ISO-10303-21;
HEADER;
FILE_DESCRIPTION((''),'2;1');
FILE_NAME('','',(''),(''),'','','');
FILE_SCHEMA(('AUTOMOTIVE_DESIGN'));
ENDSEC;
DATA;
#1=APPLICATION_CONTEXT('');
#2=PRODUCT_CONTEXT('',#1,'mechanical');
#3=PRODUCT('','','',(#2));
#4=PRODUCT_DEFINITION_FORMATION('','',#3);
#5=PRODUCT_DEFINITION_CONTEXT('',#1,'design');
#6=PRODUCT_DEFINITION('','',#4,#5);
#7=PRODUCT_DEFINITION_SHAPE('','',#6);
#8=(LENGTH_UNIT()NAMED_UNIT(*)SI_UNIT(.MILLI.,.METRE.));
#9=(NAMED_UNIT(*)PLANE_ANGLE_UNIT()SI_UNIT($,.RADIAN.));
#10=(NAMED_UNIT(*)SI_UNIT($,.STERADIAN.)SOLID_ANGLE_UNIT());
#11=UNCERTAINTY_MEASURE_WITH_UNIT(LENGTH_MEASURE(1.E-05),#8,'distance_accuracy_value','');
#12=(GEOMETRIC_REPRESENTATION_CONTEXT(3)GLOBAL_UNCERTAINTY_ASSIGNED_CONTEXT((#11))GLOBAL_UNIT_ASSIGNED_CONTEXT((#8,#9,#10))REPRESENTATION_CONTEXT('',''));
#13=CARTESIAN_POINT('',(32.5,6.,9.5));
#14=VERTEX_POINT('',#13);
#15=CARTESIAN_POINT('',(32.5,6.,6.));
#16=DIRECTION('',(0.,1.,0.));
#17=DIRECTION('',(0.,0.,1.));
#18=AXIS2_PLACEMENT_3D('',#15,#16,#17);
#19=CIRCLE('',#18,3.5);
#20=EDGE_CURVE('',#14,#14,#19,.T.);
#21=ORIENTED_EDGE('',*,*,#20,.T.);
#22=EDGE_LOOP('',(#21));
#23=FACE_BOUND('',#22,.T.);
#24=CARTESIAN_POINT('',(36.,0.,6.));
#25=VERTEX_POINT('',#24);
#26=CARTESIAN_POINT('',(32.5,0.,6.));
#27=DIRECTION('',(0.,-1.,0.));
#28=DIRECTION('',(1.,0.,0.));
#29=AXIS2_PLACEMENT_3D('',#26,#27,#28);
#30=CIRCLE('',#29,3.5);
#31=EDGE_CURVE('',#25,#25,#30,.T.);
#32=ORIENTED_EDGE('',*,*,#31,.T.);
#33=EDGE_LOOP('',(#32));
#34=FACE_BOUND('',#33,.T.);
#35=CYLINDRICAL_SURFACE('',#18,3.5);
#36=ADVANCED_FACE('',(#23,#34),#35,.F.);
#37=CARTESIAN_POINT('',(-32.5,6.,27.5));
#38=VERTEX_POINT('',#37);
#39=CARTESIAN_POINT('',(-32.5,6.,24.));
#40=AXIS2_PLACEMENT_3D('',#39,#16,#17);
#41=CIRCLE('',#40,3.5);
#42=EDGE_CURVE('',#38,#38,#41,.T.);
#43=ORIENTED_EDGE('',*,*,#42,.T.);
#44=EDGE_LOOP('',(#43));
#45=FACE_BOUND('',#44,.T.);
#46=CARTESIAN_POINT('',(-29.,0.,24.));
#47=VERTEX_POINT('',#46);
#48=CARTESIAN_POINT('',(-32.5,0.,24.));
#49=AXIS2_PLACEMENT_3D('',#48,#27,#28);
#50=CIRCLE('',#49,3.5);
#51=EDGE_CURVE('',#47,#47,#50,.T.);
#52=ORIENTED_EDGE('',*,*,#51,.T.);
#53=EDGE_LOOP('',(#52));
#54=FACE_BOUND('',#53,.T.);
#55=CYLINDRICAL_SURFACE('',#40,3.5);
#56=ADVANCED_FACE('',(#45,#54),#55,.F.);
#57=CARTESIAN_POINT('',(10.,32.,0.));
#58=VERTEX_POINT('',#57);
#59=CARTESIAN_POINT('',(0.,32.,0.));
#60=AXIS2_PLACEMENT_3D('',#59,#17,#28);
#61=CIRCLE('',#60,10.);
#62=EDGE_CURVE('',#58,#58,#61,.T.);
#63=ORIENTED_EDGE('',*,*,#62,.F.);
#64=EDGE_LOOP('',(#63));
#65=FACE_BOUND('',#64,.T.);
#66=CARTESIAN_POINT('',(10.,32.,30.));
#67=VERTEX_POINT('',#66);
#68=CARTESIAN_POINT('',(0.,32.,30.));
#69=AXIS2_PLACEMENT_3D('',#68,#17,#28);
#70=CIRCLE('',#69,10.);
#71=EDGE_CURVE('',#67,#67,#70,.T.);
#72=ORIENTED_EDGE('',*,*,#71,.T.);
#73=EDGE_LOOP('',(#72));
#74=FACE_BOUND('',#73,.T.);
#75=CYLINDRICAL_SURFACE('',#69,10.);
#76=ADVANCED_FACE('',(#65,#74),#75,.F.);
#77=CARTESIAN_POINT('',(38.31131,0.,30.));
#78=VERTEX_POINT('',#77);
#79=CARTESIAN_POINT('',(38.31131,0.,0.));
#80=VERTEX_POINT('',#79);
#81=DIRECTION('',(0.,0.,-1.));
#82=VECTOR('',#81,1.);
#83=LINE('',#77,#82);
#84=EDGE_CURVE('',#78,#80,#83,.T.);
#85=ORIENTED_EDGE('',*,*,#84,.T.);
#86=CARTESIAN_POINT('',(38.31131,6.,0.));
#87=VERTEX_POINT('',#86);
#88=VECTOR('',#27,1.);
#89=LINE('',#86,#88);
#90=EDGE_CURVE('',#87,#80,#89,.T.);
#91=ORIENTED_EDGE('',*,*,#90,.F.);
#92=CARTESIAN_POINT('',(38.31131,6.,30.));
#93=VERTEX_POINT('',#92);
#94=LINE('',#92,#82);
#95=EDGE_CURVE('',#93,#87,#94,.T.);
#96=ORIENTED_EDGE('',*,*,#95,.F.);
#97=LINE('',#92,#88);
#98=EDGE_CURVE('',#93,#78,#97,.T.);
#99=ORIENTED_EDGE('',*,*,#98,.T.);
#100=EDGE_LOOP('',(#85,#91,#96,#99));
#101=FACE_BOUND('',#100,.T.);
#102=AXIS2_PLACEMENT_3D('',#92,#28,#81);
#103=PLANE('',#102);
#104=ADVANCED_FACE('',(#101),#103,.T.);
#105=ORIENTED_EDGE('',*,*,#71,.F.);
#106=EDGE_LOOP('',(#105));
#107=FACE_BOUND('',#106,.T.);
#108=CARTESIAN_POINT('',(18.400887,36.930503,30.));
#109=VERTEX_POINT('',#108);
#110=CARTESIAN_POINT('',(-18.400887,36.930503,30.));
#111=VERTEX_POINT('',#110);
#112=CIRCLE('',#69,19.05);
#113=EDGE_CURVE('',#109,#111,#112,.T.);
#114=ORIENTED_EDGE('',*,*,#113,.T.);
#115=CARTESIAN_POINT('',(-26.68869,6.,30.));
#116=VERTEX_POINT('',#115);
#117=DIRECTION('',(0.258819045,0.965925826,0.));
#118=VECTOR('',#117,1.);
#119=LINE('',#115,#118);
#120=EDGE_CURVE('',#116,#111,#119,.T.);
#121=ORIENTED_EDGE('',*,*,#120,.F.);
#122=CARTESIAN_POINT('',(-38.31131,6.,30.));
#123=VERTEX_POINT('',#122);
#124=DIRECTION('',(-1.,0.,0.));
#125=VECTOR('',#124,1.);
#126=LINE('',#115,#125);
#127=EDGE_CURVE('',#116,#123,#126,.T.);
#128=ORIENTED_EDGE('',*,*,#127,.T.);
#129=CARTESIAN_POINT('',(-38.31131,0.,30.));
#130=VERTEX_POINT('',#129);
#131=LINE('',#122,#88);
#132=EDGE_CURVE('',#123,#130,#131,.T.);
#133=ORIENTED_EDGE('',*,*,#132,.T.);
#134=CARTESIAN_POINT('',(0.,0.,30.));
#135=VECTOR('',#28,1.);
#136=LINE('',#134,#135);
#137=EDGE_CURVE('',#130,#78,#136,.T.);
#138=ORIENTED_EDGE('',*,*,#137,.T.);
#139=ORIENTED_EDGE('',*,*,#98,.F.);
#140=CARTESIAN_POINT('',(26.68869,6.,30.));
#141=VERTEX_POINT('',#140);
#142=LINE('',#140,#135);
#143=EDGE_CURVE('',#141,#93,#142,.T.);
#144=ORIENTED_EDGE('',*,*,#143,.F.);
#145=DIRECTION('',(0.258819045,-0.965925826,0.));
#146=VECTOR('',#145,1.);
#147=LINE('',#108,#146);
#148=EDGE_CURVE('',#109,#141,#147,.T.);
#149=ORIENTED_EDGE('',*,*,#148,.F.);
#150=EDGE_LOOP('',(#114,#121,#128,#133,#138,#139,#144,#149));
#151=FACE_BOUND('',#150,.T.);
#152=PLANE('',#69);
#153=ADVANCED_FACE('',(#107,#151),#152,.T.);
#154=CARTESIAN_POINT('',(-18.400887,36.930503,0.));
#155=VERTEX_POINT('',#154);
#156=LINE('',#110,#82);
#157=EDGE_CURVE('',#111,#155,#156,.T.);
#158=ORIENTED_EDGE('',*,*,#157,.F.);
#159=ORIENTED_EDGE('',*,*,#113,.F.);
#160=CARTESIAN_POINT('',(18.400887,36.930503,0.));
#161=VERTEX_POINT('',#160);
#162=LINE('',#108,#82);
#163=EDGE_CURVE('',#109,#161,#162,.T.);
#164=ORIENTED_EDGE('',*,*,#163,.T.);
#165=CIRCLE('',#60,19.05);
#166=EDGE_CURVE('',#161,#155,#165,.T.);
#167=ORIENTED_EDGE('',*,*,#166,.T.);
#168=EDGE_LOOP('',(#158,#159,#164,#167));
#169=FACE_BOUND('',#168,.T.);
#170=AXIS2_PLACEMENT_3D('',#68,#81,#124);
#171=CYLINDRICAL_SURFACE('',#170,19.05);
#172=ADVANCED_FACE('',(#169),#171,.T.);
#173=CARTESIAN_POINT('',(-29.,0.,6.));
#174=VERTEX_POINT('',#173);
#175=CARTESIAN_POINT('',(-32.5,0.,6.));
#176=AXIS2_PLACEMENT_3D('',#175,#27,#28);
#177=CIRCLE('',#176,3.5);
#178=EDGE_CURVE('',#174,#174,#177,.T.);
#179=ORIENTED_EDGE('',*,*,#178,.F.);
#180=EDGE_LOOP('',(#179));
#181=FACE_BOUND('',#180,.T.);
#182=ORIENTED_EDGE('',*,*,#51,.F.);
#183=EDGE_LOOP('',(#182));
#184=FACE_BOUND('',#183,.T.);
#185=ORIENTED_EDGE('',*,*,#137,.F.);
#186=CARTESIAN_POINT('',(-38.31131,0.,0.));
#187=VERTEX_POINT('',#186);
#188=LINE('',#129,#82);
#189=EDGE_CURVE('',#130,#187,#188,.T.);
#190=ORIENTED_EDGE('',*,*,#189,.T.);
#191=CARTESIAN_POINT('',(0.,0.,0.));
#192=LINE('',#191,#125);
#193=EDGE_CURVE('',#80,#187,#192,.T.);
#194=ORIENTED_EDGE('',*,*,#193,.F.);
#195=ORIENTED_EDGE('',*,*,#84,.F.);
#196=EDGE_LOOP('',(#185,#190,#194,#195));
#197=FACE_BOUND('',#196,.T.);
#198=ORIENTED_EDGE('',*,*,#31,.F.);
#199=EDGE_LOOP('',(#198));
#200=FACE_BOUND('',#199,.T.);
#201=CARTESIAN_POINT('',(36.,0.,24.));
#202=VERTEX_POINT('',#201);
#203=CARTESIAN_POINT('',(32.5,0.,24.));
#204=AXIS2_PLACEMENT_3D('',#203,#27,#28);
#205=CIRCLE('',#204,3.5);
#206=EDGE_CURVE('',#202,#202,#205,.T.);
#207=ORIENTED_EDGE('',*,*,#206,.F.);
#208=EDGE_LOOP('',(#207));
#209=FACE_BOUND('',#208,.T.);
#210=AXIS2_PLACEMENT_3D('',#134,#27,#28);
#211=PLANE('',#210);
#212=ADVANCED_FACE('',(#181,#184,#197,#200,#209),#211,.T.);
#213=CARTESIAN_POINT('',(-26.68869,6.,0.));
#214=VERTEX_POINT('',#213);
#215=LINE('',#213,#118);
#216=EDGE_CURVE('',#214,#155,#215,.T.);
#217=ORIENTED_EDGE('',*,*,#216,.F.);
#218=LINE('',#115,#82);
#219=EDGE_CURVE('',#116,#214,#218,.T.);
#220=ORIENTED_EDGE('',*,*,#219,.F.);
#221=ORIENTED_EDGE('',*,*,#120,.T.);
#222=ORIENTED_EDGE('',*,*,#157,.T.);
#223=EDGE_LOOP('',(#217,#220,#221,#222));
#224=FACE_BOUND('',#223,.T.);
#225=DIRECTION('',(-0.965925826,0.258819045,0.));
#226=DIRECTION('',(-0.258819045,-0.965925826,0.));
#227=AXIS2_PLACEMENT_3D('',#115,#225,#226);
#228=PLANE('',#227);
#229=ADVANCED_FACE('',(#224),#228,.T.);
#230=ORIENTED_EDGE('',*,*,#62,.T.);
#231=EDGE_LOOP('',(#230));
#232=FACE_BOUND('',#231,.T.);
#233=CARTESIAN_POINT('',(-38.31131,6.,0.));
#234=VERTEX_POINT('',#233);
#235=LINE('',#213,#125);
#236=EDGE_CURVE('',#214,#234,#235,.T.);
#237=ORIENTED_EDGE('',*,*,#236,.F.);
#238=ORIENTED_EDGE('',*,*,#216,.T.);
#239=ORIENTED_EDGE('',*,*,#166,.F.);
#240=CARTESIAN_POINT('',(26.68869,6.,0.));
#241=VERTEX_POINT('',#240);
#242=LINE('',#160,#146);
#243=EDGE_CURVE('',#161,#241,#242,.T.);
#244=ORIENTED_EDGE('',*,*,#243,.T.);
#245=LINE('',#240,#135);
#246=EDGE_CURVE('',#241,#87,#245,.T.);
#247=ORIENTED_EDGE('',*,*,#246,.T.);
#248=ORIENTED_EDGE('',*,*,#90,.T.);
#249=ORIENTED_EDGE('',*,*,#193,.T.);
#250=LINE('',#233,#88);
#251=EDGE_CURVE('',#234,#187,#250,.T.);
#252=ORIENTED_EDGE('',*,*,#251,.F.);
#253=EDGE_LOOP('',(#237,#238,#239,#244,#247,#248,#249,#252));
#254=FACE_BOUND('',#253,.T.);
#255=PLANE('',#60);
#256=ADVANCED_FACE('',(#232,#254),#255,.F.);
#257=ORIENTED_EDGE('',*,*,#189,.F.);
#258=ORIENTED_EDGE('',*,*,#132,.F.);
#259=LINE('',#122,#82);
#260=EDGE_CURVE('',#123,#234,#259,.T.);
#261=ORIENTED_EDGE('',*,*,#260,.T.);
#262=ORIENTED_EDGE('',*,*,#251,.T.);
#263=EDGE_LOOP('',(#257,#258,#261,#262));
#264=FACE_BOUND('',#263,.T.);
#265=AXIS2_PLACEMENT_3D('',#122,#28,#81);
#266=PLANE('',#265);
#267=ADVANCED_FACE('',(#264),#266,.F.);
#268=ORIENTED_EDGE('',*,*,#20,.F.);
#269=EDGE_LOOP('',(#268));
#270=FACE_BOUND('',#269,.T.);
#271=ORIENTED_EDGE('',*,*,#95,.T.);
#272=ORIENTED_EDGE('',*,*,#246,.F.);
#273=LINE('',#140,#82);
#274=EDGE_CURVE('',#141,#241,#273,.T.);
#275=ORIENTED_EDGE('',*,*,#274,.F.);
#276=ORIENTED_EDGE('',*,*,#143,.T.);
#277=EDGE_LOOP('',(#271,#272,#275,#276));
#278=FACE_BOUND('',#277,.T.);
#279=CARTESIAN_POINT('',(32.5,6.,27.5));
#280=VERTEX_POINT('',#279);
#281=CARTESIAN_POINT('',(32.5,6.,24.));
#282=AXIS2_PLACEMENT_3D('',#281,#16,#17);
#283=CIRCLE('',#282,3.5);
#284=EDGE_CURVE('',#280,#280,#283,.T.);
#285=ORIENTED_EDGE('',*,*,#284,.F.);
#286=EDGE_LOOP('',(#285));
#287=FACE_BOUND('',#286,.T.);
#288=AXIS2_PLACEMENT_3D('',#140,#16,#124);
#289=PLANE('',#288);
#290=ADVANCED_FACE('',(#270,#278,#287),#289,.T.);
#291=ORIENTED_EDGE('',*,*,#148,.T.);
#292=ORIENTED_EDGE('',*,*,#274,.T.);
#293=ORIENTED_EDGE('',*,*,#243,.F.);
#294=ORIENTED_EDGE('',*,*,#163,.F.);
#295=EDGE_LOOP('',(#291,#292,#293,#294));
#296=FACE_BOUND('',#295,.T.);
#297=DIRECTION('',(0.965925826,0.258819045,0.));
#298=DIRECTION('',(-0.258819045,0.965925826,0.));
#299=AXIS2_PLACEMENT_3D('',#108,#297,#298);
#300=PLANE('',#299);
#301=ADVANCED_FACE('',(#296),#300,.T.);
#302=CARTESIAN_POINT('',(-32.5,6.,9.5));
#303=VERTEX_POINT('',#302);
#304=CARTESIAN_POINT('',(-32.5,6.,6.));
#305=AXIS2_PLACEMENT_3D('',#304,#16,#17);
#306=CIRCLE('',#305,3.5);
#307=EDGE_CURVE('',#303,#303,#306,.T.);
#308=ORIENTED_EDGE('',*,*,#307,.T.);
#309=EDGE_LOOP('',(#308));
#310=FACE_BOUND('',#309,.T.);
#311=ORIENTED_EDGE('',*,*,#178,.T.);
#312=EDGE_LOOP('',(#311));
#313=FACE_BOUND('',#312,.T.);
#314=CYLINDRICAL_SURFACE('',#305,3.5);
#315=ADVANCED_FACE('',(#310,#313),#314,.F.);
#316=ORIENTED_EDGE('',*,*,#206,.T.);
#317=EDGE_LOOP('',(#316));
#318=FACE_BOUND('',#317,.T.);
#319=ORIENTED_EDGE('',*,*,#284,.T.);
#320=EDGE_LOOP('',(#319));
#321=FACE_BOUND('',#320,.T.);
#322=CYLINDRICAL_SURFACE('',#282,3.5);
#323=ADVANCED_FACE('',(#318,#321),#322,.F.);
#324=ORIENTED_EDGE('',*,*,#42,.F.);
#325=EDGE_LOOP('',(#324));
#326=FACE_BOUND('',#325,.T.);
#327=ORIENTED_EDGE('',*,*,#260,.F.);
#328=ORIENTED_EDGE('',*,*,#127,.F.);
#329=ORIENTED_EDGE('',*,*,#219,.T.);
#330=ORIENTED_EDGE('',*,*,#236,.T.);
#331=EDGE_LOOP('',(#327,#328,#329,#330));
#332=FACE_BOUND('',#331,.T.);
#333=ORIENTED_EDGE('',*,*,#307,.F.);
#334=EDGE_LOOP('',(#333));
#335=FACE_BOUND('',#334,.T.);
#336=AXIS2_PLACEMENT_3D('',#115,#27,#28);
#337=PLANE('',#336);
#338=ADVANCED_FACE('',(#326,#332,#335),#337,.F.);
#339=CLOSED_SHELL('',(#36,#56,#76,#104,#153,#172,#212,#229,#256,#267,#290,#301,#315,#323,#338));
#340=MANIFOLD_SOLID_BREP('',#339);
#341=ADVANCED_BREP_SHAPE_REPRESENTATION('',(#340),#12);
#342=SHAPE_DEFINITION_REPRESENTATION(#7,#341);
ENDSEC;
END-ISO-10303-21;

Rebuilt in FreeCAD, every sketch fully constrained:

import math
import FreeCAD as App
import Part
import Sketcher

V = App.Vector
Q = App.Units.Quantity

doc = App.newDocument("Part")
body = doc.addObject("PartDesign::Body", "Body")

sketch1 = body.newObject("Sketcher::SketchObject", "Sketch")
sketch1.AttachmentSupport = (doc.getObject("XY_Plane"), [""])
sketch1.MapMode = "FlatFace"
sketch1.addGeometry([
    Part.LineSegment(V(-38, 6, 0), V(-38, 0, 0)),
    Part.LineSegment(V(-38, 0, 0), V(38, 0, 0)),
    Part.LineSegment(V(38, 0, 0), V(38, 6, 0)),
    Part.LineSegment(V(38, 6, 0), V(27, 6, 0)),
    Part.LineSegment(V(27, 6, 0), V(18, 37, 0)),
    Part.ArcOfCircle(Part.Circle(V(0, 32, 0), V(0, 0, 1), 19), math.radians(15), math.radians(165)),
    Part.LineSegment(V(-18, 37, 0), V(-27, 6, 0)),
    Part.LineSegment(V(-27, 6, 0), V(-38, 6, 0)),
], False)
sketch1.addConstraint([
    Sketcher.Constraint("Coincident", 0, 2, 1, 1),
    Sketcher.Constraint("Coincident", 1, 2, 2, 1),
    Sketcher.Constraint("Coincident", 2, 2, 3, 1),
    Sketcher.Constraint("Coincident", 3, 2, 4, 1),
    Sketcher.Constraint("Tangent", 4, 2, 5, 1),
    Sketcher.Constraint("Tangent", 5, 2, 6, 1),
    Sketcher.Constraint("Coincident", 6, 2, 7, 1),
    Sketcher.Constraint("Coincident", 7, 2, 0, 1),
    Sketcher.Constraint("Vertical", 0),
    Sketcher.Constraint("Horizontal", 1),
    Sketcher.Constraint("Vertical", 2),
    Sketcher.Constraint("Horizontal", 3),
    Sketcher.Constraint("Horizontal", 7),
    Sketcher.Constraint("Symmetric", 0, 2, 1, 2, -1, 1),
    Sketcher.Constraint("Symmetric", 4, 2, 5, 2, -2),
    Sketcher.Constraint("Horizontal", 3, 2, 6, 2),
    Sketcher.Constraint("DistanceY", 0, 2, 0, 1, 6.0),
    Sketcher.Constraint("Angle", 4, Q("105 deg")),
    Sketcher.Constraint("Radius", 5, 19.05),
    Sketcher.Constraint("DistanceY", -1, 1, 5, 3, 32.0),
    Sketcher.Constraint("DistanceX", 0, 2, 3, 2, 65.0),
])
pad1 = body.newObject("PartDesign::Pad", "Pad")
pad1.Profile = sketch1
pad1.Length = 30

sketch2 = body.newObject("Sketcher::SketchObject", "Sketch001")
sketch2.AttachmentSupport = (doc.getObject("XY_Plane"), [""])
sketch2.MapMode = "FlatFace"
sketch2.AttachmentOffset = App.Placement(V(0, 0, 30), App.Rotation())
sketch2.addGeometry(Part.Circle(V(0, 32, 0), V(0, 0, 1), 10), False)
sketch2.addConstraint([
    Sketcher.Constraint("PointOnObject", 0, 3, -2),
    Sketcher.Constraint("Diameter", 0, 20.0),
    Sketcher.Constraint("DistanceY", -1, 1, 0, 3, 32.0),
])
doc.recompute()
hole = body.newObject("PartDesign::Hole", "Hole")
hole.Profile = sketch2
hole.ThreadType = "None"
hole.Diameter = 20
hole.DepthType = "Dimension"
hole.Depth = 74.0791
hole.DrillPoint = "Angled"
hole.DrillPointAngle = 118

sketch3 = body.newObject("Sketcher::SketchObject", "Sketch002")
sketch3.AttachmentSupport = (doc.getObject("YZ_Plane"), [""])
sketch3.MapMode = "FlatFace"
sketch3.AttachmentOffset = App.Placement(V(0, 0, -32.5), App.Rotation())
sketch3.addGeometry([
    Part.LineSegment(V(-15.1, 6, 0), V(6, 6, 0)),
    Part.LineSegment(V(6, 6, 0), V(6, 9.5, 0)),
    Part.LineSegment(V(6, 9.5, 0), V(-13, 9.5, 0)),
    Part.LineSegment(V(-13, 9.5, 0), V(-15.1, 6, 0)),
], False)
sketch3.addGeometry(Part.LineSegment(V(6, 6, 0), V(-15.1, 6, 0)), True)
sketch3.addConstraint([
    Sketcher.Constraint("Coincident", 0, 2, 1, 1),
    Sketcher.Constraint("Coincident", 1, 2, 2, 1),
    Sketcher.Constraint("Coincident", 2, 2, 3, 1),
    Sketcher.Constraint("Coincident", 3, 2, 0, 1),
    Sketcher.Constraint("Horizontal", 0),
    Sketcher.Constraint("Vertical", 1),
    Sketcher.Constraint("Horizontal", 2),
    Sketcher.Constraint("Horizontal", 4),
    Sketcher.Constraint("Coincident", 4, 1, 0, 2),
    Sketcher.Constraint("Equal", 0, 4),
    Sketcher.Constraint("DistanceX", 2, 2, 2, 1, 19.0),
    Sketcher.Constraint("Angle", 3, Q("-121 deg")),
    Sketcher.Constraint("DistanceY", 1, 1, 1, 2, 3.5),
    Sketcher.Constraint("DistanceX", -1, 1, 0, 2, 6.0),
    Sketcher.Constraint("DistanceY", -1, 1, 0, 2, 6.0),
])
groove = body.newObject("PartDesign::Groove", "Groove")
groove.Profile = sketch3
groove.ReferenceAxis = (sketch3, ["Axis0"])
groove.Angle = 360
doc.recompute()

linearpattern = body.newObject("PartDesign::LinearPattern", "LinearPattern")
linearpattern.Originals = [groove]
linearpattern.Direction = (doc.getObject("Z_Axis"), [""])
linearpattern.Mode = "offset"
linearpattern.Offset = 18
linearpattern.Occurrences = 2
body.Tip = linearpattern
doc.recompute()

mirrored = body.newObject("PartDesign::Mirrored", "Mirrored")
mirrored.Originals = [groove]
mirrored.MirrorPlane = (doc.getObject("YZ_Plane"), [""])
body.Tip = mirrored

sketch4 = body.newObject("Sketcher::SketchObject", "Sketch003")
sketch4.AttachmentSupport = (doc.getObject("YZ_Plane"), [""])
sketch4.MapMode = "FlatFace"
sketch4.AttachmentOffset = App.Placement(V(0, 0, 32.5), App.Rotation())
sketch4.addGeometry([
    Part.LineSegment(V(6, 24, 0), V(-15.1, 24, 0)),
    Part.LineSegment(V(-15.1, 24, 0), V(-13, 27.5, 0)),
    Part.LineSegment(V(-13, 27.5, 0), V(6, 27.5, 0)),
    Part.LineSegment(V(6, 27.5, 0), V(6, 24, 0)),
], False)
sketch4.addGeometry(Part.LineSegment(V(-15.1, 24, 0), V(6, 24, 0)), True)
sketch4.addConstraint([
    Sketcher.Constraint("Coincident", 0, 2, 1, 1),
    Sketcher.Constraint("Coincident", 1, 2, 2, 1),
    Sketcher.Constraint("Coincident", 2, 2, 3, 1),
    Sketcher.Constraint("Coincident", 3, 2, 0, 1),
    Sketcher.Constraint("Horizontal", 0),
    Sketcher.Constraint("Horizontal", 2),
    Sketcher.Constraint("Vertical", 3),
    Sketcher.Constraint("Horizontal", 4),
    Sketcher.Constraint("Coincident", 4, 1, 0, 2),
    Sketcher.Constraint("Vertical", 2, 2, 4, 2),
    Sketcher.Constraint("DistanceX", 2, 1, 2, 2, 19.0),
    Sketcher.Constraint("Angle", 1, Q("59 deg")),
    Sketcher.Constraint("DistanceY", 3, 2, 3, 1, 3.5),
    Sketcher.Constraint("DistanceY", -1, 1, 0, 2, 24.0),
    Sketcher.Constraint("DistanceX", 1, 2, -1, 1, 13.0),
])
groove2 = body.newObject("PartDesign::Groove", "Groove001")
groove2.Profile = sketch4
groove2.ReferenceAxis = (sketch4, ["Axis0"])
groove2.Angle = 360

doc.recompute()
